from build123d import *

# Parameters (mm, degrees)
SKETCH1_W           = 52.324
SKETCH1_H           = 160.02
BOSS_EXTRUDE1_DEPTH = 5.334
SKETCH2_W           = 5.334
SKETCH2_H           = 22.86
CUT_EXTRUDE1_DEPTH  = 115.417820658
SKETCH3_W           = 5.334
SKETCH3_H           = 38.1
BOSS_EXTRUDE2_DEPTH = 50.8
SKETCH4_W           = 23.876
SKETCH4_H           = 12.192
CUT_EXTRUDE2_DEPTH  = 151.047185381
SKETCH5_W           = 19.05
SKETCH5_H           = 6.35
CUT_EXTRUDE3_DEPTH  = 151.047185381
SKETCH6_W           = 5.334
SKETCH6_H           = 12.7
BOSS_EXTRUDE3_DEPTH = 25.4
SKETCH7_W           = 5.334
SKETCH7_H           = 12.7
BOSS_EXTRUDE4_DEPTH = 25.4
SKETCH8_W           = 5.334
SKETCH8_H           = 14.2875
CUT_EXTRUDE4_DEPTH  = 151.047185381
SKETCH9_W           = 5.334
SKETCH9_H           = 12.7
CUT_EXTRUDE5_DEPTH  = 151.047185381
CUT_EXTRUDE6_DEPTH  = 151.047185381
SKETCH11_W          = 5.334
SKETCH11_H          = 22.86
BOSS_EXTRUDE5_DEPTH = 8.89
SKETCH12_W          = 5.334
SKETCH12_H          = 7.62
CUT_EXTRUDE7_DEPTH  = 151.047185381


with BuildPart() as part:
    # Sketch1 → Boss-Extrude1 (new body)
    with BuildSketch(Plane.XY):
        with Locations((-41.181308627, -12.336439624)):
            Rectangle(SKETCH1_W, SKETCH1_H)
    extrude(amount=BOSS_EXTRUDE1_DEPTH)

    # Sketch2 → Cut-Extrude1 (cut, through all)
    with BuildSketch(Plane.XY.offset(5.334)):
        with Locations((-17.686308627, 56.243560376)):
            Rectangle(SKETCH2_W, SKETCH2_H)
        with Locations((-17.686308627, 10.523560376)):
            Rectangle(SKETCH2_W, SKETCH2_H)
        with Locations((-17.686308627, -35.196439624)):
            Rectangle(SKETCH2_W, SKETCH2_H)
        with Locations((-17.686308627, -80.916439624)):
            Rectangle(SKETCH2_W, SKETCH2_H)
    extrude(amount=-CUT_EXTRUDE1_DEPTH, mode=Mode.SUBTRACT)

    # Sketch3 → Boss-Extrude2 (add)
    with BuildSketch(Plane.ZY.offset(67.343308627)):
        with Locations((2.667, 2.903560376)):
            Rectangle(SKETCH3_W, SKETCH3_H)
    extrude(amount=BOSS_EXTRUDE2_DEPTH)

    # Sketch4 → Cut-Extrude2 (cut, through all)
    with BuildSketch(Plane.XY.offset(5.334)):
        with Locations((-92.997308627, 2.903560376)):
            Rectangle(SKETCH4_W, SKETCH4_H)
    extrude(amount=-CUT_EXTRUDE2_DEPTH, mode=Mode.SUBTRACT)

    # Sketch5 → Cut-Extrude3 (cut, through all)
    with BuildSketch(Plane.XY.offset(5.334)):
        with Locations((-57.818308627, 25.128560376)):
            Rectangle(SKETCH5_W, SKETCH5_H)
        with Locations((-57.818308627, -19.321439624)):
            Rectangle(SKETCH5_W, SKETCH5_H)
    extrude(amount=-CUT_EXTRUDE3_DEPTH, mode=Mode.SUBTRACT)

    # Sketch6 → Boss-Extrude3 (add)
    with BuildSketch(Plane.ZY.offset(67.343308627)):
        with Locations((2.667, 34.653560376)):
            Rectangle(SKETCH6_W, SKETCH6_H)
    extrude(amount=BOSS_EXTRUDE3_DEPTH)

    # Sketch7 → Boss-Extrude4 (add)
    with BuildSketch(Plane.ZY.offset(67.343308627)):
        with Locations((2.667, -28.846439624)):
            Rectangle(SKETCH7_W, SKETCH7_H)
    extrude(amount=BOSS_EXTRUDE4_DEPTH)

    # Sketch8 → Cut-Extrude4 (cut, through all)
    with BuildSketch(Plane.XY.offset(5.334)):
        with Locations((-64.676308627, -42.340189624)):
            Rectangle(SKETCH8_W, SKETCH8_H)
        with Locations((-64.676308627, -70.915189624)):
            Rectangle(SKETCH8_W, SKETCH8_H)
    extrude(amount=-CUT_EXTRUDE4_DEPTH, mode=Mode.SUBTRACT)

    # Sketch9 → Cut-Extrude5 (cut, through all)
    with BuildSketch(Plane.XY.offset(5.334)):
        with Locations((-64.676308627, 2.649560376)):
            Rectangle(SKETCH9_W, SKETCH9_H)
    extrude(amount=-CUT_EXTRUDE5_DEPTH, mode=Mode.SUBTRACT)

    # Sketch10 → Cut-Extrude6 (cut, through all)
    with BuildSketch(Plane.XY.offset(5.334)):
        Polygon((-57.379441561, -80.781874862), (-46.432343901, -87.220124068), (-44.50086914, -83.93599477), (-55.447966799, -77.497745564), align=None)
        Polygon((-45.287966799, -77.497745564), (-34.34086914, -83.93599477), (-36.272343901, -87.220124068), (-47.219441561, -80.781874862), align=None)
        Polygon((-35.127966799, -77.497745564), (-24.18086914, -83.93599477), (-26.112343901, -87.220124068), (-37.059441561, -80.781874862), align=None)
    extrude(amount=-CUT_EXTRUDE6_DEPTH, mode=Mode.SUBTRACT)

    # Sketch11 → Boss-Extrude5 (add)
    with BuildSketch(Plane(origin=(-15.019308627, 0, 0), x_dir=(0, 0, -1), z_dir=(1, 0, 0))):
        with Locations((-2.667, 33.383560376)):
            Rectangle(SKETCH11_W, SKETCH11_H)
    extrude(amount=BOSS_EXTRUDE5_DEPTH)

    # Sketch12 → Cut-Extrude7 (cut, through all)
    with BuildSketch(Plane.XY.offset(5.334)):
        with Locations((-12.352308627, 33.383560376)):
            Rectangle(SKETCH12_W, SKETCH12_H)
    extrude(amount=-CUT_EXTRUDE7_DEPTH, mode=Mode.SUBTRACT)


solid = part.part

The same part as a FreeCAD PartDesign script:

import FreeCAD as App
import Part
import Sketcher
Q = App.Units.Quantity


def add_polygon(sketch, points):
    """Adds a closed chain of lines whose ends are joined by coincident constraints."""
    first, n = sketch.GeometryCount, len(points)
    for a, b in zip(points, points[1:] + points[:1]):
        sketch.addGeometry(Part.LineSegment(App.Vector(*a, 0), App.Vector(*b, 0)), False)
    for i in range(n):
        sketch.addConstraint(Sketcher.Constraint("Coincident", first + i, 2, first + (i + 1) % n, 1))

doc = App.newDocument("Part")
params = doc.addObject("Spreadsheet::Sheet", "Params")
for row, (alias, value) in enumerate([
    ("sketch1_height", "6.3 in"),
    ("sketch1_width", "2.06 in"),
    ("pad1_length", "0.21 in"),
    ("sketch2_height", "0.9 in"),
    ("sketch2_width", "0.21 in"),
    ("sketch3_width", "1.5 in"),
    ("sketch3_height", "0.21 in"),
    ("pad2_length", "2 in"),
    ("sketch4_width", "0.94 in"),
    ("sketch4_height", "0.48 in"),
    ("sketch5_width", "0.75 in"),
    ("sketch5_height", "0.25 in"),
    ("sketch6_width", "0.5 in"),
    ("sketch6_height", "0.21 in"),
    ("pad3_length", "1 in"),
    ("sketch7_width", "0.5 in"),
    ("sketch7_height", "0.21 in"),
    ("pad4_length", "1 in"),
    ("sketch8_width", "0.21 in"),
    ("sketch8_height", "0.5625 in"),
    ("sketch9_height", "0.5 in"),
    ("sketch9_width", "0.21 in"),
    ("sketch10_length", "0.5 in"),
    ("sketch10_length2", "0.15 in"),
    ("sketch11_width", "0.9 in"),
    ("sketch11_height", "0.21 in"),
    ("pad5_length", "0.35 in"),
    ("sketch12_height", "0.3 in"),
    ("sketch12_width", "0.21 in"),
], start=1):
    params.set(f"A{row}", alias)
    params.set(f"B{row}", "=" + value)
    params.setAlias(f"B{row}", alias)

body = doc.addObject("PartDesign::Body", "Body")

sketch1 = body.newObject("Sketcher::SketchObject", "Sketch")
sketch1.AttachmentSupport = (doc.getObject("XY_Plane"), [""])
sketch1.MapMode = "FlatFace"
add_polygon(sketch1, [(-67.343309, 67.67356), (-67.343309, -92.34644), (-15.019309, -92.34644), (-15.019309, 67.67356)])
sketch1.addConstraint(Sketcher.Constraint("Vertical", 0))
sketch1.addConstraint(Sketcher.Constraint("Horizontal", 1))
sketch1.addConstraint(Sketcher.Constraint("Vertical", 2))
sketch1.addConstraint(Sketcher.Constraint("Horizontal", 3))
sketch1.addConstraint(Sketcher.Constraint("DistanceY", 0, 2, 0, 1, Q("6.3 in")))
sketch1.addConstraint(Sketcher.Constraint("DistanceX", 1, 1, 1, 2, Q("2.06 in")))
sketch1.addConstraint(Sketcher.Constraint("DistanceX", 0, 2, -1, 1, 67.343309))
sketch1.addConstraint(Sketcher.Constraint("DistanceY", 0, 2, -1, 1, 92.34644))
sketch1.setExpression("Constraints[8]", "Params.sketch1_height")
sketch1.setExpression("Constraints[9]", "Params.sketch1_width")
pad1 = body.newObject("PartDesign::Pad", "Pad")
pad1.Profile = sketch1
pad1.setExpression("Length", "Params.pad1_length")

sketch2 = body.newObject("Sketcher::SketchObject", "Sketch001")
sketch2.AttachmentSupport = (doc.getObject("XY_Plane"), [""])
sketch2.MapMode = "FlatFace"
sketch2.AttachmentOffset = App.Placement(App.Vector(0, 0, 0.21 * 25.4), App.Rotation())
add_polygon(sketch2, [(-20.353309, 67.67356), (-20.353309, 44.81356), (-15.019309, 44.81356), (-15.019309, 67.67356)])
add_polygon(sketch2, [(-20.353309, 21.95356), (-20.353309, -0.90644), (-15.019309, -0.90644), (-15.019309, 21.95356)])
add_polygon(sketch2, [(-20.353309, -23.76644), (-20.353309, -46.62644), (-15.019309, -46.62644), (-15.019309, -23.76644)])
add_polygon(sketch2, [(-20.353309, -69.48644), (-20.353309, -92.34644), (-15.019309, -92.34644), (-15.019309, -69.48644)])
sketch2.addConstraint(Sketcher.Constraint("Vertical", 0))
sketch2.addConstraint(Sketcher.Constraint("Horizontal", 1))
sketch2.addConstraint(Sketcher.Constraint("Vertical", 2))
sketch2.addConstraint(Sketcher.Constraint("Horizontal", 3))
sketch2.addConstraint(Sketcher.Constraint("Vertical", 4))
sketch2.addConstraint(Sketcher.Constraint("Horizontal", 5))
sketch2.addConstraint(Sketcher.Constraint("Vertical", 6))
sketch2.addConstraint(Sketcher.Constraint("Horizontal", 7))
sketch2.addConstraint(Sketcher.Constraint("Vertical", 8))
sketch2.addConstraint(Sketcher.Constraint("Horizontal", 9))
sketch2.addConstraint(Sketcher.Constraint("Vertical", 10))
sketch2.addConstraint(Sketcher.Constraint("Horizontal", 11))
sketch2.addConstraint(Sketcher.Constraint("Vertical", 12))
sketch2.addConstraint(Sketcher.Constraint("Horizontal", 13))
sketch2.addConstraint(Sketcher.Constraint("Vertical", 14))
sketch2.addConstraint(Sketcher.Constraint("Horizontal", 15))
sketch2.addConstraint(Sketcher.Constraint("Vertical", 3, 2, 4, 2))
sketch2.addConstraint(Sketcher.Constraint("Vertical", 2, 2, 5, 2))
sketch2.addConstraint(Sketcher.Constraint("Vertical", 7, 2, 8, 2))
sketch2.addConstraint(Sketcher.Constraint("Vertical", 6, 2, 9, 2))
sketch2.addConstraint(Sketcher.Constraint("Vertical", 11, 2, 12, 2))
sketch2.addConstraint(Sketcher.Constraint("Vertical", 10, 2, 13, 2))
sketch2.addConstraint(Sketcher.Constraint("Equal", 2, 4))
sketch2.addConstraint(Sketcher.Constraint("Equal", 6, 8))
sketch2.addConstraint(Sketcher.Constraint("Equal", 10, 12))
sketch2.addConstraint(Sketcher.Constraint("DistanceY", 0, 2, 0, 1, Q("0.9 in")))
sketch2.addConstraint(Sketcher.Constraint("DistanceX", 1, 1, 1, 2, Q("0.21 in")))
sketch2.addConstraint(Sketcher.Constraint("DistanceY", 4, 2, 0, 2, Q("1.8 in")))
sketch2.addConstraint(Sketcher.Constraint("DistanceY", 8, 2, 4, 2, Q("1.8 in")))
sketch2.addConstraint(Sketcher.Constraint("DistanceY", 12, 2, 8, 2, Q("1.8 in")))
sketch2.addConstraint(Sketcher.Constraint("DistanceX", 0, 2, -1, 1, 20.353309))
sketch2.addConstraint(Sketcher.Constraint("DistanceY", -1, 1, 0, 2, 44.81356))
sketch2.setExpression("Constraints[41]", "Params.sketch2_height")
sketch2.setExpression("Constraints[42]", "Params.sketch2_width")
pocket1 = body.newObject("PartDesign::Pocket", "Pocket")
pocket1.Profile = sketch2
pocket1.Type = "ThroughAll"

sketch3 = body.newObject("Sketcher::SketchObject", "Sketch002")
sketch3.AttachmentSupport = (doc.getObject("YZ_Plane"), [""])
sketch3.MapMode = "FlatFace"
sketch3.AttachmentOffset = App.Placement(App.Vector(0, 0, -67.343309), App.Rotation())
add_polygon(sketch3, [(21.95356, 0), (-16.14644, 0), (-16.14644, 5.334), (21.95356, 5.334)])
sketch3.addConstraint(Sketcher.Constraint("Horizontal", 0))
sketch3.addConstraint(Sketcher.Constraint("Vertical", 1))
sketch3.addConstraint(Sketcher.Constraint("Horizontal", 2))
sketch3.addConstraint(Sketcher.Constraint("Vertical", 3))
sketch3.addConstraint(Sketcher.Constraint("PointOnObject", 0, 2, -1))
sketch3.addConstraint(Sketcher.Constraint("DistanceX", 0, 2, 0, 1, Q("1.5 in")))
sketch3.addConstraint(Sketcher.Constraint("DistanceY", 1, 1, 1, 2, Q("0.21 in")))
sketch3.addConstraint(Sketcher.Constraint("DistanceX", 0, 2, -1, 1, 16.14644))
sketch3.setExpression("Constraints[9]", "Params.sketch3_width")
sketch3.setExpression("Constraints[10]", "Params.sketch3_height")
pad2 = body.newObject("PartDesign::Pad", "Pad001")
pad2.Profile = sketch3
pad2.setExpression("Length", "Params.pad2_length")
pad2.Reversed = True

sketch4 = body.newObject("Sketcher::SketchObject", "Sketch003")
sketch4.AttachmentSupport = (doc.getObject("XY_Plane"), [""])
sketch4.MapMode = "FlatFace"
sketch4.AttachmentOffset = App.Placement(App.Vector(0, 0, 0.21 * 25.4), App.Rotation())
add_polygon(sketch4, [(-104.935309, 8.99956), (-104.935309, -3.19244), (-81.059309, -3.19244), (-81.059309, 8.99956)])
sketch4.addConstraint(Sketcher.Constraint("Vertical", 0))
sketch4.addConstraint(Sketcher.Constraint("Horizontal", 1))
sketch4.addConstraint(Sketcher.Constraint("Vertical", 2))
sketch4.addConstraint(Sketcher.Constraint("Horizontal", 3))
sketch4.addConstraint(Sketcher.Constraint("DistanceX", 1, 1, 1, 2, Q("0.94 in")))
sketch4.addConstraint(Sketcher.Constraint("DistanceY", 0, 2, 0, 1, Q("0.48 in")))
sketch4.addConstraint(Sketcher.Constraint("DistanceX", 0, 2, -1, 1, 104.935309))
sketch4.addConstraint(Sketcher.Constraint("DistanceY", 0, 2, -1, 1, 3.19244))
sketch4.setExpression("Constraints[8]", "Params.sketch4_width")
sketch4.setExpression("Constraints[9]", "Params.sketch4_height")
pocket2 = body.newObject("PartDesign::Pocket", "Pocket001")
pocket2.Profile = sketch4
pocket2.Type = "ThroughAll"

sketch5 = body.newObject("Sketcher::SketchObject", "Sketch004")
sketch5.AttachmentSupport = (doc.getObject("XY_Plane"), [""])
sketch5.MapMode = "FlatFace"
sketch5.AttachmentOffset = App.Placement(App.Vector(0, 0, 0.21 * 25.4), App.Rotation())
add_polygon(sketch5, [(-67.343309, 28.30356), (-67.343309, 21.95356), (-48.293309, 21.95356), (-48.293309, 28.30356)])
add_polygon(sketch5, [(-67.343309, -16.14644), (-67.343309, -22.49644), (-48.293309, -22.49644), (-48.293309, -16.14644)])
sketch5.addConstraint(Sketcher.Constraint("Vertical", 0))
sketch5.addConstraint(Sketcher.Constraint("Horizontal", 1))
sketch5.addConstraint(Sketcher.Constraint("Vertical", 2))
sketch5.addConstraint(Sketcher.Constraint("Horizontal", 3))
sketch5.addConstraint(Sketcher.Constraint("Vertical", 4))
sketch5.addConstraint(Sketcher.Constraint("Horizontal", 5))
sketch5.addConstraint(Sketcher.Constraint("Vertical", 6))
sketch5.addConstraint(Sketcher.Constraint("Horizontal", 7))
sketch5.addConstraint(Sketcher.Constraint("Vertical", 3, 2, 4, 2))
sketch5.addConstraint(Sketcher.Constraint("Vertical", 2, 2, 5, 2))
sketch5.addConstraint(Sketcher.Constraint("Equal", 2, 4))
sketch5.addConstraint(Sketcher.Constraint("DistanceY", 4, 2, 3, 2, Q("2 in")))
sketch5.addConstraint(Sketcher.Constraint("DistanceX", 1, 1, 1, 2, Q("0.75 in")))
sketch5.addConstraint(Sketcher.Constraint("DistanceY", 0, 2, 0, 1, Q("0.25 in")))
sketch5.addConstraint(Sketcher.Constraint("DistanceX", 0, 2, -1, 1, 67.343309))
sketch5.addConstraint(Sketcher.Constraint("DistanceY", -1, 1, 0, 2, 21.95356))
sketch5.setExpression("Constraints[20]", "Params.sketch5_width")
sketch5.setExpression("Constraints[21]", "Params.sketch5_height")
pocket3 = body.newObject("PartDesign::Pocket", "Pocket002")
pocket3.Profile = sketch5
pocket3.Type = "ThroughAll"

sketch6 = body.newObject("Sketcher::SketchObject", "Sketch005")
sketch6.AttachmentSupport = (doc.getObject("YZ_Plane"), [""])
sketch6.MapMode = "FlatFace"
sketch6.AttachmentOffset = App.Placement(App.Vector(0, 0, -67.343309), App.Rotation())
add_polygon(sketch6, [(41.00356, 0), (28.30356, 0), (28.30356, 5.334), (41.00356, 5.334)])
sketch6.addConstraint(Sketcher.Constraint("Horizontal", 0))
sketch6.addConstraint(Sketcher.Constraint("Vertical", 1))
sketch6.addConstraint(Sketcher.Constraint("Horizontal", 2))
sketch6.addConstraint(Sketcher.Constraint("Vertical", 3))
sketch6.addConstraint(Sketcher.Constraint("PointOnObject", 0, 2, -1))
sketch6.addConstraint(Sketcher.Constraint("DistanceX", 0, 2, 0, 1, Q("0.5 in")))
sketch6.addConstraint(Sketcher.Constraint("DistanceY", 1, 1, 1, 2, Q("0.21 in")))
sketch6.addConstraint(Sketcher.Constraint("DistanceX", -1, 1, 0, 2, 28.30356))
sketch6.setExpression("Constraints[9]", "Params.sketch6_width")
sketch6.setExpression("Constraints[10]", "Params.sketch6_height")
pad3 = body.newObject("PartDesign::Pad", "Pad002")
pad3.Profile = sketch6
pad3.setExpression("Length", "Params.pad3_length")
pad3.Reversed = True

sketch7 = body.newObject("Sketcher::SketchObject", "Sketch006")
sketch7.AttachmentSupport = (doc.getObject("YZ_Plane"), [""])
sketch7.MapMode = "FlatFace"
sketch7.AttachmentOffset = App.Placement(App.Vector(0, 0, -67.343309), App.Rotation())
add_polygon(sketch7, [(-22.49644, 0), (-35.19644, 0), (-35.19644, 5.334), (-22.49644, 5.334)])
sketch7.addConstraint(Sketcher.Constraint("Horizontal", 0))
sketch7.addConstraint(Sketcher.Constraint("Vertical", 1))
sketch7.addConstraint(Sketcher.Constraint("Horizontal", 2))
sketch7.addConstraint(Sketcher.Constraint("Vertical", 3))
sketch7.addConstraint(Sketcher.Constraint("PointOnObject", 0, 2, -1))
sketch7.addConstraint(Sketcher.Constraint("DistanceX", 0, 2, 0, 1, Q("0.5 in")))
sketch7.addConstraint(Sketcher.Constraint("DistanceY", 1, 1, 1, 2, Q("0.21 in")))
sketch7.addConstraint(Sketcher.Constraint("DistanceX", 0, 2, -1, 1, 35.19644))
sketch7.setExpression("Constraints[9]", "Params.sketch7_width")
sketch7.setExpression("Constraints[10]", "Params.sketch7_height")
pad4 = body.newObject("PartDesign::Pad", "Pad003")
pad4.Profile = sketch7
pad4.setExpression("Length", "Params.pad4_length")
pad4.Reversed = True

sketch8 = body.newObject("Sketcher::SketchObject", "Sketch007")
sketch8.AttachmentSupport = (doc.getObject("XY_Plane"), [""])
sketch8.MapMode = "FlatFace"
sketch8.AttachmentOffset = App.Placement(App.Vector(0, 0, 0.21 * 25.4), App.Rotation())
add_polygon(sketch8, [(-67.343309, -35.19644), (-67.343309, -49.48394), (-62.009309, -49.48394), (-62.009309, -35.19644)])
add_polygon(sketch8, [(-67.343309, -63.77144), (-67.343309, -78.05894), (-62.009309, -78.05894), (-62.009309, -63.77144)])
sketch8.addConstraint(Sketcher.Constraint("Vertical", 0))
sketch8.addConstraint(Sketcher.Constraint("Horizontal", 1))
sketch8.addConstraint(Sketcher.Constraint("Vertical", 2))
sketch8.addConstraint(Sketcher.Constraint("Horizontal", 3))
sketch8.addConstraint(Sketcher.Constraint("Vertical", 4))
sketch8.addConstraint(Sketcher.Constraint("Horizontal", 5))
sketch8.addConstraint(Sketcher.Constraint("Vertical", 6))
sketch8.addConstraint(Sketcher.Constraint("Horizontal", 7))
sketch8.addConstraint(Sketcher.Constraint("Vertical", 3, 2, 4, 2))
sketch8.addConstraint(Sketcher.Constraint("Vertical", 2, 2, 5, 2))
sketch8.addConstraint(Sketcher.Constraint("Equal", 2, 4))
sketch8.addConstraint(Sketcher.Constraint("DistanceX", 1, 1, 1, 2, Q("0.21 in")))
sketch8.addConstraint(Sketcher.Constraint("DistanceY", 0, 2, 0, 1, Q("0.5625 in")))
sketch8.addConstraint(Sketcher.Constraint("DistanceY", 4, 2, 0, 2, Q("1.125 in")))
sketch8.addConstraint(Sketcher.Constraint("DistanceX", 0, 2, -1, 1, 67.343309))
sketch8.addConstraint(Sketcher.Constraint("DistanceY", 0, 2, -1, 1, 49.48394))
sketch8.setExpression("Constraints[19]", "Params.sketch8_width")
sketch8.setExpression("Constraints[20]", "Params.sketch8_height")
pocket4 = body.newObject("PartDesign::Pocket", "Pocket003")
pocket4.Profile = sketch8
pocket4.Type = "ThroughAll"

sketch9 = body.newObject("Sketcher::SketchObject", "Sketch008")
sketch9.AttachmentSupport = (doc.getObject("XY_Plane"), [""])
sketch9.MapMode = "FlatFace"
sketch9.AttachmentOffset = App.Placement(App.Vector(0, 0, 0.21 * 25.4), App.Rotation())
add_polygon(sketch9, [(-67.343309, 8.99956), (-67.343309, -3.70044), (-62.009309, -3.70044), (-62.009309, 8.99956)])
sketch9.addConstraint(Sketcher.Constraint("Vertical", 0))
sketch9.addConstraint(Sketcher.Constraint("Horizontal", 1))
sketch9.addConstraint(Sketcher.Constraint("Vertical", 2))
sketch9.addConstraint(Sketcher.Constraint("Horizontal", 3))
sketch9.addConstraint(Sketcher.Constraint("DistanceY", 0, 2, 0, 1, Q("0.5 in")))
sketch9.addConstraint(Sketcher.Constraint("DistanceX", 1, 1, 1, 2, Q("0.21 in")))
sketch9.addConstraint(Sketcher.Constraint("DistanceX", 0, 2, -1, 1, 67.343309))
sketch9.addConstraint(Sketcher.Constraint("DistanceY", 0, 2, -1, 1, 3.70044))
sketch9.setExpression("Constraints[8]", "Params.sketch9_height")
sketch9.setExpression("Constraints[9]", "Params.sketch9_width")
pocket5 = body.newObject("PartDesign::Pocket", "Pocket004")
pocket5.Profile = sketch9
pocket5.Type = "ThroughAll"

sketch10 = body.newObject("Sketcher::SketchObject", "Sketch009")
sketch10.AttachmentSupport = (doc.getObject("XY_Plane"), [""])
sketch10.MapMode = "FlatFace"
sketch10.AttachmentOffset = App.Placement(App.Vector(0, 0, 0.21 * 25.4), App.Rotation())
add_polygon(sketch10, [(-57.379442, -80.781875), (-46.432344, -87.220124), (-44.500869, -83.935995), (-55.447967, -77.497746)])
add_polygon(sketch10, [(-34.340869, -83.935995), (-45.287967, -77.497746), (-47.219442, -80.781875), (-36.272344, -87.220124)])
add_polygon(sketch10, [(-24.180869, -83.935995), (-35.127967, -77.497746), (-37.059442, -80.781875), (-26.112344, -87.220124)])
sketch10.addConstraint(Sketcher.Constraint("Perpendicular", 0, 1))
sketch10.addConstraint(Sketcher.Constraint("Perpendicular", 1, 2))
sketch10.addConstraint(Sketcher.Constraint("Perpendicular", 2, 3))
sketch10.addConstraint(Sketcher.Constraint("Perpendicular", 3, 4))
sketch10.addConstraint(Sketcher.Constraint("Perpendicular", 4, 5))
sketch10.addConstraint(Sketcher.Constraint("Perpendicular", 5, 6))
sketch10.addConstraint(Sketcher.Constraint("Perpendicular", 6, 7))
sketch10.addConstraint(Sketcher.Constraint("Perpendicular", 7, 8))
sketch10.addConstraint(Sketcher.Constraint("Perpendicular", 8, 9))
sketch10.addConstraint(Sketcher.Constraint("Perpendicular", 9, 10))
sketch10.addConstraint(Sketcher.Constraint("Perpendicular", 10, 11))
sketch10.addConstraint(Sketcher.Constraint("Horizontal", 2, 2, 4, 2))
sketch10.addConstraint(Sketcher.Constraint("Horizontal", 3, 2, 5, 2))
sketch10.addConstraint(Sketcher.Constraint("Horizontal", 0, 2, 6, 2))
sketch10.addConstraint(Sketcher.Constraint("Horizontal", 4, 2, 8, 2))
sketch10.addConstraint(Sketcher.Constraint("Horizontal", 5, 2, 9, 2))
sketch10.addConstraint(Sketcher.Constraint("Horizontal", 6, 2, 10, 2))
sketch10.addConstraint(Sketcher.Constraint("Distance", 0, Q("0.5 in")))
sketch10.addConstraint(Sketcher.Constraint("DistanceX", 2, 2, 4, 2, Q("0.4 in")))
sketch10.addConstraint(Sketcher.Constraint("DistanceX", 4, 2, 8, 2, Q("0.4 in")))
sketch10.addConstraint(Sketcher.Constraint("Distance", 1, Q("0.15 in")))
sketch10.addConstraint(Sketcher.Constraint("DistanceX", 1, 2, -1, 1, 44.500869))
sketch10.addConstraint(Sketcher.Constraint("DistanceX", 3, 2, -1, 1, 57.379442))
sketch10.addConstraint(Sketcher.Constraint("DistanceY", 0, 2, -1, 1, 87.220124))
sketch10.setExpression("Constraints[29]", "Params.sketch10_length")
sketch10.setExpression("Constraints[32]", "Params.sketch10_length2")
pocket6 = body.newObject("PartDesign::Pocket", "Pocket005")
pocket6.Profile = sketch10
pocket6.Type = "ThroughAll"

sketch11 = body.newObject("Sketcher::SketchObject", "Sketch010")
sketch11.AttachmentSupport = (doc.getObject("YZ_Plane"), [""])
sketch11.MapMode = "FlatFace"
sketch11.AttachmentOffset = App.Placement(App.Vector(0, 0, -15.019309), App.Rotation())
add_polygon(sketch11, [(44.81356, 5.334), (21.95356, 5.334), (21.95356, 0), (44.81356, 0)])
sketch11.addConstraint(Sketcher.Constraint("Horizontal", 0))
sketch11.addConstraint(Sketcher.Constraint("Vertical", 1))
sketch11.addConstraint(Sketcher.Constraint("Horizontal", 2))
sketch11.addConstraint(Sketcher.Constraint("Vertical", 3))
sketch11.addConstraint(Sketcher.Constraint("PointOnObject", 1, 2, -1))
sketch11.addConstraint(Sketcher.Constraint("DistanceX", 0, 2, 0, 1, Q("0.9 in")))
sketch11.addConstraint(Sketcher.Constraint("DistanceY", 1, 2, 1, 1, Q("0.21 in")))
sketch11.addConstraint(Sketcher.Constraint("DistanceX", -1, 1, 0, 2, 21.95356))
sketch11.setExpression("Constraints[9]", "Params.sketch11_width")
sketch11.setExpression("Constraints[10]", "Params.sketch11_height")
pad5 = body.newObject("PartDesign::Pad", "Pad004")
pad5.Profile = sketch11
pad5.setExpression("Length", "Params.pad5_length")

sketch12 = body.newObject("Sketcher::SketchObject", "Sketch011")
sketch12.AttachmentSupport = (doc.getObject("XY_Plane"), [""])
sketch12.MapMode = "FlatFace"
sketch12.AttachmentOffset = App.Placement(App.Vector(0, 0, 0.21 * 25.4), App.Rotation())
add_polygon(sketch12, [(-15.019309, 37.19356), (-15.019309, 29.57356), (-9.685309, 29.57356), (-9.685309, 37.19356)])
sketch12.addConstraint(Sketcher.Constraint("Vertical", 0))
sketch12.addConstraint(Sketcher.Constraint("Horizontal", 1))
sketch12.addConstraint(Sketcher.Constraint("Vertical", 2))
sketch12.addConstraint(Sketcher.Constraint("Horizontal", 3))
sketch12.addConstraint(Sketcher.Constraint("DistanceY", 0, 2, 0, 1, Q("0.3 in")))
sketch12.addConstraint(Sketcher.Constraint("DistanceX", 1, 1, 1, 2, Q("0.21 in")))
sketch12.addConstraint(Sketcher.Constraint("DistanceX", 0, 2, -1, 1, 15.019309))
sketch12.addConstraint(Sketcher.Constraint("DistanceY", -1, 1, 0, 2, 29.57356))
sketch12.setExpression("Constraints[8]", "Params.sketch12_height")
sketch12.setExpression("Constraints[9]", "Params.sketch12_width")
pocket7 = body.newObject("PartDesign::Pocket", "Pocket006")
pocket7.Profile = sketch12
pocket7.Type = "ThroughAll"

doc.recompute()
